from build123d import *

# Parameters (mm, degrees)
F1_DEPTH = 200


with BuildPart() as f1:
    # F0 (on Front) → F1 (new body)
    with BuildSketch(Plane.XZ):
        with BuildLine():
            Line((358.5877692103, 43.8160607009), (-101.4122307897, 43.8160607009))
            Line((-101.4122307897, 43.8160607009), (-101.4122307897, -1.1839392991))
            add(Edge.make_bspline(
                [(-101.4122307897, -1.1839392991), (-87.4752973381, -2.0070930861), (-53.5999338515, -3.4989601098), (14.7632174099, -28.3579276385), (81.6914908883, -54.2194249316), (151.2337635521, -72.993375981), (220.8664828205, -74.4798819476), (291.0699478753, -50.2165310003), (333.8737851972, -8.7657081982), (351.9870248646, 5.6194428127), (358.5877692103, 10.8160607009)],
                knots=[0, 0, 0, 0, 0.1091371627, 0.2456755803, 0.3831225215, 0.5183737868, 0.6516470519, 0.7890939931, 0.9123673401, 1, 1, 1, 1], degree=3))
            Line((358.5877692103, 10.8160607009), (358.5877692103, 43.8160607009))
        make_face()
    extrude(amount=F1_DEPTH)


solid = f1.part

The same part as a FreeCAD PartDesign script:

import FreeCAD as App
import Part
import Sketcher
from FreeCAD import Vector
Q = App.Units.Quantity

doc = App.newDocument("Part")
body = doc.addObject("PartDesign::Body", "Body")

sketch1 = doc.addObject("Sketcher::SketchObject", "Sketch")
body.addObject(sketch1)
sketch1.AttachmentSupport = (doc.XZ_Plane, [""])
sketch1.MapMode = "FlatFace"
sketch1.addGeometry([
    Part.LineSegment(Vector(358.587769, 43.816061, 0), Vector(-101.412231, 43.816061, 0)),
    Part.LineSegment(Vector(-101.412231, 43.816061, 0), Vector(-101.412231, -1.183939, 0)),
    Part.BSplineCurve([Vector(-101.412231, -1.183939, 0), Vector(-87.475297, -2.007093, 0), Vector(-53.599934, -3.49896, 0), Vector(14.763217, -28.357928, 0), Vector(81.691491, -54.219425, 0), Vector(151.233764, -72.993376, 0), Vector(220.866483, -74.479882, 0), Vector(291.069948, -50.216531, 0), Vector(333.873785, -8.765708, 0), Vector(351.987025, 5.619443, 0), Vector(358.587769, 10.816061, 0)], [4, 1, 1, 1, 1, 1, 1, 1, 4], [0, 0.109137163, 0.24567558, 0.383122521, 0.518373787, 0.651647052, 0.789093993, 0.91236734, 1], False, 3, [1, 1, 1, 1, 1, 1, 1, 1, 1, 1, 1], False),
    Part.LineSegment(Vector(358.587769, 10.816061, 0), Vector(358.587769, 43.816061, 0)),
], False)
sketch1.addConstraint([
    Sketcher.Constraint("Block", 2),
    Sketcher.Constraint("Coincident", 0, 2, 1, 1),
    Sketcher.Constraint("Coincident", 1, 2, 2, 1),
    Sketcher.Constraint("Coincident", 2, 2, 3, 1),
    Sketcher.Constraint("Coincident", 3, 2, 0, 1),
    Sketcher.Constraint("Horizontal", 0),
    Sketcher.Constraint("Vertical", 1),
    Sketcher.Constraint("Vertical", 3),
    Sketcher.Constraint("DistanceY", 1, 2, 1, 1, Q("45 mm")),
])
pad1 = doc.addObject("PartDesign::Pad", "Pad")
body.addObject(pad1)
pad1.Profile = sketch1
pad1.Length = 200

doc.recompute()
